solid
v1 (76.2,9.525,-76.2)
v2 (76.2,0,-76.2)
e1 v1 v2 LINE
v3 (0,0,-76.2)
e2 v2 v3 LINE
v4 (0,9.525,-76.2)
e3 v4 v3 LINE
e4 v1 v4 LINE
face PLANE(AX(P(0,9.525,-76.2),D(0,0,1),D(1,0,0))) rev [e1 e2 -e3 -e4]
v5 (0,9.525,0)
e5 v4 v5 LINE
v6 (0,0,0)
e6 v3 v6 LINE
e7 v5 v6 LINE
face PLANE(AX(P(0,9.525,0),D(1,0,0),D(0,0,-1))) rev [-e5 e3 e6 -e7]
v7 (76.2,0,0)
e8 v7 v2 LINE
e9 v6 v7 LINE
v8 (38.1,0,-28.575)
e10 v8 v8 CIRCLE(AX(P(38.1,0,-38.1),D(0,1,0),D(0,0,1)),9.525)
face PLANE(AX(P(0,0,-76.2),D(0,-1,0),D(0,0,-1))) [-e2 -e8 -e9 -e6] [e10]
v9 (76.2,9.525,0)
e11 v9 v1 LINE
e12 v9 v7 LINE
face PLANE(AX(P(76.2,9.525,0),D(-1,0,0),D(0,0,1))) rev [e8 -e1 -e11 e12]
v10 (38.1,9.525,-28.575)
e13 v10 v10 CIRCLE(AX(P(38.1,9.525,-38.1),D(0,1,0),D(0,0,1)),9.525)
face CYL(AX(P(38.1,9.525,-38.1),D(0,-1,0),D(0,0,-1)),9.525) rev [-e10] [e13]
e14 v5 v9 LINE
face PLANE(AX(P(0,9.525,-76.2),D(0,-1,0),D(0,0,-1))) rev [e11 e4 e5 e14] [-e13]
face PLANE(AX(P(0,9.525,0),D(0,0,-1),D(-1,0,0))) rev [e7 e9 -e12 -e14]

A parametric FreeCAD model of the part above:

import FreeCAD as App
import Part
import Sketcher

V = App.Vector
Q = App.Units.Quantity

doc = App.newDocument("Part")
body = doc.addObject("PartDesign::Body", "Body")

# Sketch on XZ plane
sketch1 = body.newObject("Sketcher::SketchObject", "Sketch")
sketch1.AttachmentSupport = (doc.getObject("XZ_Plane"), [""])
sketch1.MapMode = "FlatFace"
sketch1.addGeometry([
    Part.LineSegment(V(0, -76, 0), V(0, 0, 0)),  # 0
    Part.LineSegment(V(0, 0, 0), V(76, 0, 0)),  # 1
    Part.LineSegment(V(76, 0, 0), V(76, -76, 0)),  # 2
    Part.LineSegment(V(76, -76, 0), V(0, -76, 0)),  # 3
    Part.Circle(V(38, -38, 0), V(0, 0, 1), 10),  # 4
], False)
sketch1.addConstraint([
    Sketcher.Constraint("Coincident", 0, 2, 1, 1),
    Sketcher.Constraint("Coincident", 1, 2, 2, 1),
    Sketcher.Constraint("Coincident", 2, 2, 3, 1),
    Sketcher.Constraint("Coincident", 3, 2, 0, 1),
    Sketcher.Constraint("Vertical", 0),
    Sketcher.Constraint("Horizontal", 1),
    Sketcher.Constraint("Vertical", 2),
    Sketcher.Constraint("Horizontal", 3),
    Sketcher.Constraint("Coincident", 0, 2, -1, 1),
    Sketcher.Constraint("Equal", 3, 0),
    Sketcher.Constraint("Diameter", 4, Q("0.75 in")),
    Sketcher.Constraint("DistanceX", 1, 1, 1, 2, Q("3 in")),
    Sketcher.Constraint("DistanceX", -1, 1, 4, 3, Q("1.5 in")),
    Sketcher.Constraint("DistanceY", 4, 3, -1, 1, Q("1.5 in")),
])
pad1 = body.newObject("PartDesign::Pad", "Pad")
pad1.Profile = sketch1
pad1.Length = Q("0.375 in")
pad1.Reversed = True

doc.recompute()
